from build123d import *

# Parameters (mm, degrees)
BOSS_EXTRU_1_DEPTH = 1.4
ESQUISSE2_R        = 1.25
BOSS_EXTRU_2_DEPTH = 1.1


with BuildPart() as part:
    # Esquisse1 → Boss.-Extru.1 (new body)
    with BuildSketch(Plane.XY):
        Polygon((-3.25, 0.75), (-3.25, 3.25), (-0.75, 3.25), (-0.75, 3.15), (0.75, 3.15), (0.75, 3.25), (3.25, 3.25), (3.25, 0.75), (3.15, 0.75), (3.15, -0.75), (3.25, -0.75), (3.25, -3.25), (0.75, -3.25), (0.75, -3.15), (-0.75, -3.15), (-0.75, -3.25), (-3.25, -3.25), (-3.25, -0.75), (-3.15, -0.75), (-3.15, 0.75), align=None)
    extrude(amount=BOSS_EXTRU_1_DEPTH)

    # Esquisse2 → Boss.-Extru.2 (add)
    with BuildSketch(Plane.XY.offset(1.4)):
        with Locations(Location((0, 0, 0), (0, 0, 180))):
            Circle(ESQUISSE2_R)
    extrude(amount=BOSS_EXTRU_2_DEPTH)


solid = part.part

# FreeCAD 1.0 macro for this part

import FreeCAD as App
import Part
import Sketcher
Q = App.Units.Quantity


def add_polygon(sketch, points):
    """Adds a closed chain of lines whose ends are joined by coincident constraints."""
    first, n = sketch.GeometryCount, len(points)
    for a, b in zip(points, points[1:] + points[:1]):
        sketch.addGeometry(Part.LineSegment(App.Vector(*a, 0), App.Vector(*b, 0)), False)
    for i in range(n):
        sketch.addConstraint(Sketcher.Constraint("Coincident", first + i, 2, first + (i + 1) % n, 1))

doc = App.newDocument("Part")
params = doc.addObject("Spreadsheet::Sheet", "Params")
for row, (alias, value) in enumerate([
    ("sketch1_width", "0.1 mm"),
    ("sketch1_width2", "2.5 mm"),
    ("sketch1_width3", "1.5 mm"),
    ("pad1_length", "1.4 mm"),
    ("sketch2_diameter", "2.5 mm"),
    ("pad2_length", "1.1 mm"),
], start=1):
    params.set(f"A{row}", alias)
    params.set(f"B{row}", "=" + value)
    params.setAlias(f"B{row}", alias)

body = doc.addObject("PartDesign::Body", "Body")

# Sketch on XY plane
sketch1 = body.newObject("Sketcher::SketchObject", "Sketch")
sketch1.AttachmentSupport = (doc.getObject("XY_Plane"), [""])
sketch1.MapMode = "FlatFace"
add_polygon(sketch1, [(-3.25, 3.25), (-3.25, 0.75), (-3.15, 0.75), (-3.15, -0.75), (-3.25, -0.75), (-3.25, -3.25), (-0.75, -3.25), (-0.75, -3.15), (0.75, -3.15), (0.75, -3.25), (3.25, -3.25), (3.25, -0.75), (3.15, -0.75), (3.15, 0.75), (3.25, 0.75), (3.25, 3.25), (0.75, 3.25), (0.75, 3.15), (-0.75, 3.15), (-0.75, 3.25)])  # lines 0-19
sketch1.addConstraint(Sketcher.Constraint("Vertical", 0))
sketch1.addConstraint(Sketcher.Constraint("Horizontal", 1))
sketch1.addConstraint(Sketcher.Constraint("Vertical", 2))
sketch1.addConstraint(Sketcher.Constraint("Horizontal", 3))
sketch1.addConstraint(Sketcher.Constraint("Vertical", 4))
sketch1.addConstraint(Sketcher.Constraint("Horizontal", 5))
sketch1.addConstraint(Sketcher.Constraint("Vertical", 6))
sketch1.addConstraint(Sketcher.Constraint("Horizontal", 7))
sketch1.addConstraint(Sketcher.Constraint("Vertical", 8))
sketch1.addConstraint(Sketcher.Constraint("Horizontal", 9))
sketch1.addConstraint(Sketcher.Constraint("Vertical", 10))
sketch1.addConstraint(Sketcher.Constraint("Horizontal", 11))
sketch1.addConstraint(Sketcher.Constraint("Vertical", 12))
sketch1.addConstraint(Sketcher.Constraint("Horizontal", 13))
sketch1.addConstraint(Sketcher.Constraint("Vertical", 14))
sketch1.addConstraint(Sketcher.Constraint("Horizontal", 15))
sketch1.addConstraint(Sketcher.Constraint("Vertical", 16))
sketch1.addConstraint(Sketcher.Constraint("Horizontal", 17))
sketch1.addConstraint(Sketcher.Constraint("Vertical", 18))
sketch1.addConstraint(Sketcher.Constraint("Horizontal", 19))
sketch1.addConstraint(Sketcher.Constraint("Symmetric", 0, 2, 10, 2, -1, 1))
sketch1.addConstraint(Sketcher.Constraint("Symmetric", 2, 2, 12, 2, -1, 1))
sketch1.addConstraint(Sketcher.Constraint("Symmetric", 4, 2, 14, 2, -1, 1))
sketch1.addConstraint(Sketcher.Constraint("Symmetric", 6, 2, 16, 2, -1, 1))
sketch1.addConstraint(Sketcher.Constraint("Symmetric", 8, 2, 18, 2, -1, 1))
sketch1.addConstraint(Sketcher.Constraint("Symmetric", 5, 2, 8, 2, -2))
sketch1.addConstraint(Sketcher.Constraint("Symmetric", 3, 2, 10, 2, -2))
sketch1.addConstraint(Sketcher.Constraint("Equal", 19, 0))
sketch1.addConstraint(Sketcher.Constraint("Equal", 17, 2))
sketch1.addConstraint(Sketcher.Constraint("Equal", 13, 6))
sketch1.addConstraint(Sketcher.Constraint("DistanceX", 1, 1, 1, 2, Q("0.1 mm")))
sketch1.addConstraint(Sketcher.Constraint("DistanceX", 5, 1, 5, 2, Q("2.5 mm")))
sketch1.addConstraint(Sketcher.Constraint("DistanceX", 7, 1, 7, 2, Q("1.5 mm")))
sketch1.setExpression("Constraints[50]", "Params.sketch1_width")
sketch1.setExpression("Constraints[51]", "Params.sketch1_width2")
sketch1.setExpression("Constraints[52]", "Params.sketch1_width3")
pad1 = body.newObject("PartDesign::Pad", "Pad")
pad1.Profile = sketch1
pad1.setExpression("Length", "Params.pad1_length")

# Sketch on XY plane
sketch2 = body.newObject("Sketcher::SketchObject", "Sketch001")
sketch2.AttachmentSupport = (doc.getObject("XY_Plane"), [""])
sketch2.MapMode = "FlatFace"
sketch2.AttachmentOffset = App.Placement(App.Vector(0, 0, 1.4), App.Rotation())
sketch2.addGeometry(Part.Circle(App.Vector(0, 0, 0), App.Vector(0, 0, 1), 1.2), False)
sketch2.addConstraint(Sketcher.Constraint("Coincident", 0, 3, -1, 1))
sketch2.addConstraint(Sketcher.Constraint("Diameter", 0, Q("2.5 mm")))
sketch2.setExpression("Constraints[1]", "Params.sketch2_diameter")
pad2 = body.newObject("PartDesign::Pad", "Pad001")
pad2.Profile = sketch2
pad2.setExpression("Length", "Params.pad2_length")

doc.recompute()
